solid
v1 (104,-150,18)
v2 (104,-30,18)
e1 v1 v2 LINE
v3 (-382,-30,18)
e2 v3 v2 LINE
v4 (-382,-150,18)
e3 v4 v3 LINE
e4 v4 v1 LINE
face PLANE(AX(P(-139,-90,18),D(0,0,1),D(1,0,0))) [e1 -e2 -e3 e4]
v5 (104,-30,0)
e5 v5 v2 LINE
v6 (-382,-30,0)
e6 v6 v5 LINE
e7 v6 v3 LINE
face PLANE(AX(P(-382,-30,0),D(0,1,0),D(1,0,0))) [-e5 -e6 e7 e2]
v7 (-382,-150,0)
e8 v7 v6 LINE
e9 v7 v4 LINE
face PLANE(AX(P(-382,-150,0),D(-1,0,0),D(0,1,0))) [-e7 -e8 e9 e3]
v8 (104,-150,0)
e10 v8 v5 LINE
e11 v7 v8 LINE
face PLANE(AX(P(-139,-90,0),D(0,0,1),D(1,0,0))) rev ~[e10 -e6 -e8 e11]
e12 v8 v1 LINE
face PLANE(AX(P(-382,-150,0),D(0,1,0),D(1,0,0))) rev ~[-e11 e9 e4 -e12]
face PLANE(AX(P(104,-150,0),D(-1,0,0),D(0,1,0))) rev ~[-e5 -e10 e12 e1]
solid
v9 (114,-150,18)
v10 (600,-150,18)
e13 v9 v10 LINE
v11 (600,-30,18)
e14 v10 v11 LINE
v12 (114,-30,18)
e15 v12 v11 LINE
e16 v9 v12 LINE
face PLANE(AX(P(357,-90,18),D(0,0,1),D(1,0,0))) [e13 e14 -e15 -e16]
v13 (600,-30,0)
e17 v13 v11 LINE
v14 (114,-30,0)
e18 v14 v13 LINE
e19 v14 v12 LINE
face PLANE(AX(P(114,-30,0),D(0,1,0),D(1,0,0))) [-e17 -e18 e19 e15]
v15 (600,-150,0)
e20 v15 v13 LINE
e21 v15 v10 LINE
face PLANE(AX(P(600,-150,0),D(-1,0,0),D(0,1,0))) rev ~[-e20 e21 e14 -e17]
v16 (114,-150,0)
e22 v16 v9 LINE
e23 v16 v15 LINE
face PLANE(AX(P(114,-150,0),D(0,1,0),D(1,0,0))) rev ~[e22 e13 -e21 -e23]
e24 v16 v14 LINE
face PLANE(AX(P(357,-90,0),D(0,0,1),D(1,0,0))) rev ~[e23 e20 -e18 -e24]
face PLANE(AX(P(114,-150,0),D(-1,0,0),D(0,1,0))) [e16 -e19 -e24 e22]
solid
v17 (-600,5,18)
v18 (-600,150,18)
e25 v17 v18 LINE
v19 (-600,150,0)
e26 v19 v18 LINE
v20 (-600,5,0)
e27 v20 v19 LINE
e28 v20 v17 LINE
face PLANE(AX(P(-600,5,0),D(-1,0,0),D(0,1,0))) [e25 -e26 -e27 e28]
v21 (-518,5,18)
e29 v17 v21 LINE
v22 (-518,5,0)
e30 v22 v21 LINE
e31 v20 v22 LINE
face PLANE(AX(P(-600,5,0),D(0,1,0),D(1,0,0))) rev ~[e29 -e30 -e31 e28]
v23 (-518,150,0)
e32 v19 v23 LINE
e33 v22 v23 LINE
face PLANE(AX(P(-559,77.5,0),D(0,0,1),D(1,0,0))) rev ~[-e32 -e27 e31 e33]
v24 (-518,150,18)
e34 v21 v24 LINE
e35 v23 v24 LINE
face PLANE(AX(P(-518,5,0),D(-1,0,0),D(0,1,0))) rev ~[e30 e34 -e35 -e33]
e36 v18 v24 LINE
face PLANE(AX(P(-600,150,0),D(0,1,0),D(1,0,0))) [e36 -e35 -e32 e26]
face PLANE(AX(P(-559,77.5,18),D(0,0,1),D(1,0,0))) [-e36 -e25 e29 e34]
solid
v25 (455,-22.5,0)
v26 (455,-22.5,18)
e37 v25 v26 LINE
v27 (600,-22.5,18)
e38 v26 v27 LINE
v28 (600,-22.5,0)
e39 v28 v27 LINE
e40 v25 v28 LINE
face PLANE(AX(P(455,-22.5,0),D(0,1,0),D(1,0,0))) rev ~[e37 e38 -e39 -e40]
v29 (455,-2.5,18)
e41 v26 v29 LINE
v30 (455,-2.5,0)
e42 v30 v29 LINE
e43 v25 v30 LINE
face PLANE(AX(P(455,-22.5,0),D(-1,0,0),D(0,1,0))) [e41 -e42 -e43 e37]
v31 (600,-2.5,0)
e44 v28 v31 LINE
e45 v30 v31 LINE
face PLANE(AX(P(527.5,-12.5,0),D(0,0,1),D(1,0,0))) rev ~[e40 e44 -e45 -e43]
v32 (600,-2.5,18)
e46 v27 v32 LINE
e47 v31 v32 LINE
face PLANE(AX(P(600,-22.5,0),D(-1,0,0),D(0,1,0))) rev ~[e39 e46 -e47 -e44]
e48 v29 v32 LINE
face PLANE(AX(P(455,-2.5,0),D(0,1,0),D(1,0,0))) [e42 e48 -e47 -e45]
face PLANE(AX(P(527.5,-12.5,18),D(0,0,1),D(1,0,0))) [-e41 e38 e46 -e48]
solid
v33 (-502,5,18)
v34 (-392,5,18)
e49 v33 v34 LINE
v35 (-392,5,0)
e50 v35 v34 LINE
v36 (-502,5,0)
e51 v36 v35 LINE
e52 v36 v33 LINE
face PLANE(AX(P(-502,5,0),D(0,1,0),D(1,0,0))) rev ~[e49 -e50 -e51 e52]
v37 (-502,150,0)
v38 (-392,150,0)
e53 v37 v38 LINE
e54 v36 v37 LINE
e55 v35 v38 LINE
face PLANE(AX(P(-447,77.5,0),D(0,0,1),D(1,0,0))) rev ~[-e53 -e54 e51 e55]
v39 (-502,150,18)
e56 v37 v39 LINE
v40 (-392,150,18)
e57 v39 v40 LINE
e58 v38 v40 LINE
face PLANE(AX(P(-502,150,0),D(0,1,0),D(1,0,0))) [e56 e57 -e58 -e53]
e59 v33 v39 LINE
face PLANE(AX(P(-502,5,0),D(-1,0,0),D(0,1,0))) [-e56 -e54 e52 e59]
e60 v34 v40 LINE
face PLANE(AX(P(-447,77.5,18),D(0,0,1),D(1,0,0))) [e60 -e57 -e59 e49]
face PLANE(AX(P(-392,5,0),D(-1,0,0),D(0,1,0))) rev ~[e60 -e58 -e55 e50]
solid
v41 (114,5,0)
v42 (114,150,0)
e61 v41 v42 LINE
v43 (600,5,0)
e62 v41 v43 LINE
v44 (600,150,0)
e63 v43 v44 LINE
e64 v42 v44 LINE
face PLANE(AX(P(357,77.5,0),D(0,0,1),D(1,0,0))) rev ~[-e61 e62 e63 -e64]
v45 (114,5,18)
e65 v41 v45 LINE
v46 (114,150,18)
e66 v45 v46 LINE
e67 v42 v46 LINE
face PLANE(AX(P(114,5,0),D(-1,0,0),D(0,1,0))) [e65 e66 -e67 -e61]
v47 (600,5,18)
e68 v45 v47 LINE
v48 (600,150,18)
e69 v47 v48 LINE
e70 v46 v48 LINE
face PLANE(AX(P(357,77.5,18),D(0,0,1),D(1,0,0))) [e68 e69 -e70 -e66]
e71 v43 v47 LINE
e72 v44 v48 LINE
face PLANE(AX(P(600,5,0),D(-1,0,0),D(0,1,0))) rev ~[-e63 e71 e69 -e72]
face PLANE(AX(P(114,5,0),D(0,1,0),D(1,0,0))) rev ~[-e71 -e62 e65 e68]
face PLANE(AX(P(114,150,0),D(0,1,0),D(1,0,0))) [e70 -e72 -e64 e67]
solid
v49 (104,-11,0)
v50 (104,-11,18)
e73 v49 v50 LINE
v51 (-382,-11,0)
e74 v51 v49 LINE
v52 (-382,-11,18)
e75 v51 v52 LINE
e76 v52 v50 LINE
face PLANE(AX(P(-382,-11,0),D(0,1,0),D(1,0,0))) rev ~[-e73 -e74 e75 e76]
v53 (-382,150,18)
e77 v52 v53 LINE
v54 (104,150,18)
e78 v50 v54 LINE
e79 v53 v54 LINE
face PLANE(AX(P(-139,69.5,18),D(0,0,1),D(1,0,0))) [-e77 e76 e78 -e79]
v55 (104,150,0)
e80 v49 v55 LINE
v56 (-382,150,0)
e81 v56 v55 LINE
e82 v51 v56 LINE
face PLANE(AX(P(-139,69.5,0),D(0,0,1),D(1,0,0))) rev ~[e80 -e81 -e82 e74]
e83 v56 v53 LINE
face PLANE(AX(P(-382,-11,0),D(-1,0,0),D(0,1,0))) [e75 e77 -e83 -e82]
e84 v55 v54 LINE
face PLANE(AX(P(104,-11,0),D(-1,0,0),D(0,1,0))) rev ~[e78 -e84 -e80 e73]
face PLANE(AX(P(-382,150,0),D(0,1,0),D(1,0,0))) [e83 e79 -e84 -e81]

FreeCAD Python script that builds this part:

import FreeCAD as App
import Part
import Sketcher

V = App.Vector
Q = App.Units.Quantity


def add_polygon(sketch, points):
    """Adds a closed chain of lines whose ends are joined by coincident constraints."""
    first, n = sketch.GeometryCount, len(points)
    for a, b in zip(points, points[1:] + points[:1]):
        sketch.addGeometry(Part.LineSegment(App.Vector(*a, 0), App.Vector(*b, 0)), False)
    for i in range(n):
        sketch.addConstraint(Sketcher.Constraint("Coincident", first + i, 2, first + (i + 1) % n, 1))

doc = App.newDocument("Part")
body = doc.addObject("PartDesign::Body", "Body")
body.AllowCompound = True

# Sketch on XY plane
sketch1 = doc.addObject("Sketcher::SketchObject", "Sketch")
body.addObject(sketch1)
sketch1.AttachmentSupport = (doc.XY_Plane, [""])
sketch1.MapMode = "FlatFace"
add_polygon(sketch1, [(114, 150), (114, 5), (600, 5), (600, 150)])  # lines 0-3
add_polygon(sketch1, [(-382, 150), (-382, -11), (104, -11), (104, 150)])  # lines 4-7
add_polygon(sketch1, [(114, -30), (114, -150), (600, -150), (600, -30)])  # lines 8-11
add_polygon(sketch1, [(-382, -30), (-382, -150), (104, -150), (104, -30)])  # lines 12-15
add_polygon(sketch1, [(-502, 150), (-502, 5), (-392, 5), (-392, 150)])  # lines 16-19
add_polygon(sketch1, [(-600, 150), (-600, 5), (-518, 5), (-518, 150)])  # lines 20-23
add_polygon(sketch1, [(455, -2.5), (455, -22.5), (600, -22.5), (600, -2.5)])  # lines 24-27
sketch1.addConstraint([
    Sketcher.Constraint("Vertical", 0),
    Sketcher.Constraint("Horizontal", 1),
    Sketcher.Constraint("Vertical", 2),
    Sketcher.Constraint("Horizontal", 3),
    Sketcher.Constraint("Vertical", 4),
    Sketcher.Constraint("Horizontal", 5),
    Sketcher.Constraint("Vertical", 6),
    Sketcher.Constraint("Horizontal", 7),
    Sketcher.Constraint("Vertical", 8),
    Sketcher.Constraint("Horizontal", 9),
    Sketcher.Constraint("Vertical", 10),
    Sketcher.Constraint("Horizontal", 11),
    Sketcher.Constraint("Vertical", 12),
    Sketcher.Constraint("Horizontal", 13),
    Sketcher.Constraint("Vertical", 14),
    Sketcher.Constraint("Horizontal", 15),
    Sketcher.Constraint("Vertical", 16),
    Sketcher.Constraint("Horizontal", 17),
    Sketcher.Constraint("Vertical", 18),
    Sketcher.Constraint("Horizontal", 19),
    Sketcher.Constraint("Vertical", 20),
    Sketcher.Constraint("Horizontal", 21),
    Sketcher.Constraint("Vertical", 22),
    Sketcher.Constraint("Horizontal", 23),
    Sketcher.Constraint("Vertical", 24),
    Sketcher.Constraint("Horizontal", 25),
    Sketcher.Constraint("Vertical", 26),
    Sketcher.Constraint("Horizontal", 27),
    Sketcher.Constraint("Symmetric", 9, 2, 23, 2, -1, 1),
    Sketcher.Constraint("Symmetric", 1, 2, 20, 2, -2),
    Sketcher.Constraint("Symmetric", 3, 2, 8, 2, -1),
    Sketcher.Constraint("Symmetric", 7, 2, 12, 2, -1),
    Sketcher.Constraint("Horizontal", 3, 2, 6, 2),
    Sketcher.Constraint("Horizontal", 11, 2, 14, 2),
    Sketcher.Constraint("Horizontal", 1, 2, 16, 2),
    Sketcher.Constraint("Horizontal", 7, 2, 18, 2),
    Sketcher.Constraint("Vertical", 6, 2, 13, 2),
    Sketcher.Constraint("Vertical", 10, 2, 25, 2),
    Sketcher.Constraint("Equal", 3, 5),
    Sketcher.Constraint("Equal", 27, 0),
    Sketcher.Constraint("DistanceX", 1, 1, 1, 2, Q("486 mm")),
    Sketcher.Constraint("DistanceX", 17, 1, 17, 2, Q("110 mm")),
    Sketcher.Constraint("DistanceX", 21, 1, 21, 2, Q("82 mm")),
    Sketcher.Constraint("DistanceX", 25, 1, 25, 2, Q("145 mm")),
    Sketcher.Constraint("DistanceY", 4, 2, 4, 1, Q("161 mm")),
    Sketcher.Constraint("DistanceY", 8, 2, 8, 1, Q("120 mm")),
    Sketcher.Constraint("DistanceY", 24, 2, 24, 1, Q("20 mm")),
    Sketcher.Constraint("DistanceX", -1, 1, 0, 2, Q("114 mm")),
    Sketcher.Constraint("DistanceY", -1, 1, 0, 2, Q("5 mm")),
    Sketcher.Constraint("DistanceX", 4, 2, -1, 1, Q("382 mm")),
    Sketcher.Constraint("DistanceX", 16, 2, -1, 1, Q("502 mm")),
    Sketcher.Constraint("DistanceY", 24, 2, -1, 1, Q("22.5 mm")),
])
pad1 = doc.addObject("PartDesign::Pad", "Pad")
body.addObject(pad1)
pad1.Profile = sketch1
pad1.Length = 18

doc.recompute()
